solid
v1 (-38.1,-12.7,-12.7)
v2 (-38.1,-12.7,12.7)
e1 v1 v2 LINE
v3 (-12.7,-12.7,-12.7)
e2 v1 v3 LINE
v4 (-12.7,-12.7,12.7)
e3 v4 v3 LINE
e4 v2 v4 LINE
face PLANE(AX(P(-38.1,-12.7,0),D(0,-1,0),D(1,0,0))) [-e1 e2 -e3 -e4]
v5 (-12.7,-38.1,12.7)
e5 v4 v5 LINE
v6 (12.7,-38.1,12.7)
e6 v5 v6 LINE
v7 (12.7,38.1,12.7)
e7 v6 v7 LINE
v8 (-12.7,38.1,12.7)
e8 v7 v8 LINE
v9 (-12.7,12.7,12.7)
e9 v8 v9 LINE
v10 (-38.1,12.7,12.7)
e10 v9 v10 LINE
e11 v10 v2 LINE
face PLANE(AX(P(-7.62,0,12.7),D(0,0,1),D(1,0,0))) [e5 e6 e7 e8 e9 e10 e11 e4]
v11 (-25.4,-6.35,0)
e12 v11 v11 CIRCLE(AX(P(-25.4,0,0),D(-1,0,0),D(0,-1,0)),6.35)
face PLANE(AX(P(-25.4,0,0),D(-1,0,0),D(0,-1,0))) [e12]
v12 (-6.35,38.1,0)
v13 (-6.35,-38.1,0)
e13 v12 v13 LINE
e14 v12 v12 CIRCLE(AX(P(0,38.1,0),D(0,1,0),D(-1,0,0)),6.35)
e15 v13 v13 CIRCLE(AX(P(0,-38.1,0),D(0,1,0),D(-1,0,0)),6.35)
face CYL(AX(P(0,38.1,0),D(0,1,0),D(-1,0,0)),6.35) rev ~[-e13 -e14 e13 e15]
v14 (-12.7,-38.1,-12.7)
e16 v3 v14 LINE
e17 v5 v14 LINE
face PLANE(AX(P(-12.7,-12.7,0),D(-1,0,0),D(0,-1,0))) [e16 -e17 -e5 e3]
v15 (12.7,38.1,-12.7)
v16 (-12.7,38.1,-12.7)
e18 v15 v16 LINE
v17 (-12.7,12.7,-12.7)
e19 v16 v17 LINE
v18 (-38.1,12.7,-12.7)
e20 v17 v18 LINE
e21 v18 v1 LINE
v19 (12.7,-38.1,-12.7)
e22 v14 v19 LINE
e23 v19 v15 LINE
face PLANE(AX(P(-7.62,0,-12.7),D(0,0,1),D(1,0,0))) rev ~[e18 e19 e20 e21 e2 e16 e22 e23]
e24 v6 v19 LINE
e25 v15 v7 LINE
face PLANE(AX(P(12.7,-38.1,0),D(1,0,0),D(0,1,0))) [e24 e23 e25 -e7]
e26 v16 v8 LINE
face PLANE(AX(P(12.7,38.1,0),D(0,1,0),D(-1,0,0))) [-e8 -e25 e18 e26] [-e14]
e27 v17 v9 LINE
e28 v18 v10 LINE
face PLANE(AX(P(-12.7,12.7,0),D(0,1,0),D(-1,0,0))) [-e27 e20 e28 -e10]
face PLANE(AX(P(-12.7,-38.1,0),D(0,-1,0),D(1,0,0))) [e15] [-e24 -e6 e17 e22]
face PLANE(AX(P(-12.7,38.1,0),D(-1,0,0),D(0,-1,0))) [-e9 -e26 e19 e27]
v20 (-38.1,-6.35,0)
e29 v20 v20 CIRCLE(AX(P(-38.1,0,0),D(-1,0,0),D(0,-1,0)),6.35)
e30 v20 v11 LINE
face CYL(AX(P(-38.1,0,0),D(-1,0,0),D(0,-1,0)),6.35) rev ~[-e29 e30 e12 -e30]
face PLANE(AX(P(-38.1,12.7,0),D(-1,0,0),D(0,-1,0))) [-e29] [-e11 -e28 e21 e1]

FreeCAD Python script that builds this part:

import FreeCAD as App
import Part
import Sketcher

V = App.Vector
Q = App.Units.Quantity


def add_polygon(sketch, points):
    """Adds a closed chain of lines whose ends are joined by coincident constraints."""
    first, n = sketch.GeometryCount, len(points)
    for a, b in zip(points, points[1:] + points[:1]):
        sketch.addGeometry(Part.LineSegment(App.Vector(*a, 0), App.Vector(*b, 0)), False)
    for i in range(n):
        sketch.addConstraint(Sketcher.Constraint("Coincident", first + i, 2, first + (i + 1) % n, 1))

doc = App.newDocument("Part")
params = doc.addObject("Spreadsheet::Sheet", "Params")
for row, (alias, value) in enumerate([
    ("sketch1_width", "1 in"),
    ("pad1_length", "1 in"),
    ("sketch2_diameter", "0.5 in"),
    ("sketch3_diameter", "0.5 in"),
    ("pocket2_length", "0.5 in"),
], start=1):
    params.set(f"A{row}", alias)
    params.set(f"B{row}", "=" + value)
    params.setAlias(f"B{row}", alias)

body = doc.addObject("PartDesign::Body", "Body")

sketch1 = body.newObject("Sketcher::SketchObject", "Sketch")
sketch1.AttachmentSupport = (doc.getObject("XY_Plane"), [""])
sketch1.MapMode = "FlatFace"
add_polygon(sketch1, [(12.7, -38.1), (12.7, 38.1), (-12.7, 38.1), (-12.7, 12.7), (-38.1, 12.7), (-38.1, -12.7), (-12.7, -12.7), (-12.7, -38.1)])
sketch1.addConstraint(Sketcher.Constraint("Vertical", 0))
sketch1.addConstraint(Sketcher.Constraint("Horizontal", 1))
sketch1.addConstraint(Sketcher.Constraint("Vertical", 2))
sketch1.addConstraint(Sketcher.Constraint("Horizontal", 3))
sketch1.addConstraint(Sketcher.Constraint("Vertical", 4))
sketch1.addConstraint(Sketcher.Constraint("Horizontal", 5))
sketch1.addConstraint(Sketcher.Constraint("Vertical", 6))
sketch1.addConstraint(Sketcher.Constraint("Horizontal", 7))
sketch1.addConstraint(Sketcher.Constraint("Symmetric", 0, 2, 6, 2, -1, 1))
sketch1.addConstraint(Sketcher.Constraint("Symmetric", 2, 2, 5, 2, -1))
sketch1.addConstraint(Sketcher.Constraint("Equal", 1, 3))
sketch1.addConstraint(Sketcher.Constraint("Equal", 7, 2))
sketch1.addConstraint(Sketcher.Constraint("Equal", 2, 4))
sketch1.addConstraint(Sketcher.Constraint("DistanceX", 1, 2, 1, 1, Q("1 in")))
sketch1.setExpression("Constraints[21]", "Params.sketch1_width")
pad1 = body.newObject("PartDesign::Pad", "Pad")
pad1.Profile = sketch1
pad1.setExpression("Length", "Params.pad1_length")
pad1.Midplane = True

sketch2 = body.newObject("Sketcher::SketchObject", "Sketch001")
sketch2.AttachmentSupport = (doc.getObject("XZ_Plane"), [""])
sketch2.MapMode = "FlatFace"
sketch2.AttachmentOffset = App.Placement(V(0, 0, -1.5 * 25.4), App.Rotation())
sketch2.addGeometry(Part.Circle(V(0, 0, 0), V(0, 0, 1), 6.35), False)
sketch2.addConstraint(Sketcher.Constraint("Coincident", 0, 3, -1, 1))
sketch2.addConstraint(Sketcher.Constraint("Diameter", 0, Q("0.5 in")))
sketch2.setExpression("Constraints[1]", "Params.sketch2_diameter")
pocket1 = body.newObject("PartDesign::Pocket", "Pocket")
pocket1.Profile = sketch2
pocket1.Type = "ThroughAll"
pocket1.Reversed = True

sketch3 = body.newObject("Sketcher::SketchObject", "Sketch002")
sketch3.AttachmentSupport = (doc.getObject("YZ_Plane"), [""])
sketch3.MapMode = "FlatFace"
sketch3.AttachmentOffset = App.Placement(V(0, 0, -1.5 * 25.4), App.Rotation())
sketch3.addGeometry(Part.Circle(V(0, 0, 0), V(0, 0, 1), 6.35), False)
sketch3.addConstraint(Sketcher.Constraint("Coincident", 0, 3, -1, 1))
sketch3.addConstraint(Sketcher.Constraint("Diameter", 0, Q("0.5 in")))
sketch3.setExpression("Constraints[1]", "Params.sketch3_diameter")
pocket2 = body.newObject("PartDesign::Pocket", "Pocket001")
pocket2.Profile = sketch3
pocket2.setExpression("Length", "Params.pocket2_length")
pocket2.Reversed = True

doc.recompute()
